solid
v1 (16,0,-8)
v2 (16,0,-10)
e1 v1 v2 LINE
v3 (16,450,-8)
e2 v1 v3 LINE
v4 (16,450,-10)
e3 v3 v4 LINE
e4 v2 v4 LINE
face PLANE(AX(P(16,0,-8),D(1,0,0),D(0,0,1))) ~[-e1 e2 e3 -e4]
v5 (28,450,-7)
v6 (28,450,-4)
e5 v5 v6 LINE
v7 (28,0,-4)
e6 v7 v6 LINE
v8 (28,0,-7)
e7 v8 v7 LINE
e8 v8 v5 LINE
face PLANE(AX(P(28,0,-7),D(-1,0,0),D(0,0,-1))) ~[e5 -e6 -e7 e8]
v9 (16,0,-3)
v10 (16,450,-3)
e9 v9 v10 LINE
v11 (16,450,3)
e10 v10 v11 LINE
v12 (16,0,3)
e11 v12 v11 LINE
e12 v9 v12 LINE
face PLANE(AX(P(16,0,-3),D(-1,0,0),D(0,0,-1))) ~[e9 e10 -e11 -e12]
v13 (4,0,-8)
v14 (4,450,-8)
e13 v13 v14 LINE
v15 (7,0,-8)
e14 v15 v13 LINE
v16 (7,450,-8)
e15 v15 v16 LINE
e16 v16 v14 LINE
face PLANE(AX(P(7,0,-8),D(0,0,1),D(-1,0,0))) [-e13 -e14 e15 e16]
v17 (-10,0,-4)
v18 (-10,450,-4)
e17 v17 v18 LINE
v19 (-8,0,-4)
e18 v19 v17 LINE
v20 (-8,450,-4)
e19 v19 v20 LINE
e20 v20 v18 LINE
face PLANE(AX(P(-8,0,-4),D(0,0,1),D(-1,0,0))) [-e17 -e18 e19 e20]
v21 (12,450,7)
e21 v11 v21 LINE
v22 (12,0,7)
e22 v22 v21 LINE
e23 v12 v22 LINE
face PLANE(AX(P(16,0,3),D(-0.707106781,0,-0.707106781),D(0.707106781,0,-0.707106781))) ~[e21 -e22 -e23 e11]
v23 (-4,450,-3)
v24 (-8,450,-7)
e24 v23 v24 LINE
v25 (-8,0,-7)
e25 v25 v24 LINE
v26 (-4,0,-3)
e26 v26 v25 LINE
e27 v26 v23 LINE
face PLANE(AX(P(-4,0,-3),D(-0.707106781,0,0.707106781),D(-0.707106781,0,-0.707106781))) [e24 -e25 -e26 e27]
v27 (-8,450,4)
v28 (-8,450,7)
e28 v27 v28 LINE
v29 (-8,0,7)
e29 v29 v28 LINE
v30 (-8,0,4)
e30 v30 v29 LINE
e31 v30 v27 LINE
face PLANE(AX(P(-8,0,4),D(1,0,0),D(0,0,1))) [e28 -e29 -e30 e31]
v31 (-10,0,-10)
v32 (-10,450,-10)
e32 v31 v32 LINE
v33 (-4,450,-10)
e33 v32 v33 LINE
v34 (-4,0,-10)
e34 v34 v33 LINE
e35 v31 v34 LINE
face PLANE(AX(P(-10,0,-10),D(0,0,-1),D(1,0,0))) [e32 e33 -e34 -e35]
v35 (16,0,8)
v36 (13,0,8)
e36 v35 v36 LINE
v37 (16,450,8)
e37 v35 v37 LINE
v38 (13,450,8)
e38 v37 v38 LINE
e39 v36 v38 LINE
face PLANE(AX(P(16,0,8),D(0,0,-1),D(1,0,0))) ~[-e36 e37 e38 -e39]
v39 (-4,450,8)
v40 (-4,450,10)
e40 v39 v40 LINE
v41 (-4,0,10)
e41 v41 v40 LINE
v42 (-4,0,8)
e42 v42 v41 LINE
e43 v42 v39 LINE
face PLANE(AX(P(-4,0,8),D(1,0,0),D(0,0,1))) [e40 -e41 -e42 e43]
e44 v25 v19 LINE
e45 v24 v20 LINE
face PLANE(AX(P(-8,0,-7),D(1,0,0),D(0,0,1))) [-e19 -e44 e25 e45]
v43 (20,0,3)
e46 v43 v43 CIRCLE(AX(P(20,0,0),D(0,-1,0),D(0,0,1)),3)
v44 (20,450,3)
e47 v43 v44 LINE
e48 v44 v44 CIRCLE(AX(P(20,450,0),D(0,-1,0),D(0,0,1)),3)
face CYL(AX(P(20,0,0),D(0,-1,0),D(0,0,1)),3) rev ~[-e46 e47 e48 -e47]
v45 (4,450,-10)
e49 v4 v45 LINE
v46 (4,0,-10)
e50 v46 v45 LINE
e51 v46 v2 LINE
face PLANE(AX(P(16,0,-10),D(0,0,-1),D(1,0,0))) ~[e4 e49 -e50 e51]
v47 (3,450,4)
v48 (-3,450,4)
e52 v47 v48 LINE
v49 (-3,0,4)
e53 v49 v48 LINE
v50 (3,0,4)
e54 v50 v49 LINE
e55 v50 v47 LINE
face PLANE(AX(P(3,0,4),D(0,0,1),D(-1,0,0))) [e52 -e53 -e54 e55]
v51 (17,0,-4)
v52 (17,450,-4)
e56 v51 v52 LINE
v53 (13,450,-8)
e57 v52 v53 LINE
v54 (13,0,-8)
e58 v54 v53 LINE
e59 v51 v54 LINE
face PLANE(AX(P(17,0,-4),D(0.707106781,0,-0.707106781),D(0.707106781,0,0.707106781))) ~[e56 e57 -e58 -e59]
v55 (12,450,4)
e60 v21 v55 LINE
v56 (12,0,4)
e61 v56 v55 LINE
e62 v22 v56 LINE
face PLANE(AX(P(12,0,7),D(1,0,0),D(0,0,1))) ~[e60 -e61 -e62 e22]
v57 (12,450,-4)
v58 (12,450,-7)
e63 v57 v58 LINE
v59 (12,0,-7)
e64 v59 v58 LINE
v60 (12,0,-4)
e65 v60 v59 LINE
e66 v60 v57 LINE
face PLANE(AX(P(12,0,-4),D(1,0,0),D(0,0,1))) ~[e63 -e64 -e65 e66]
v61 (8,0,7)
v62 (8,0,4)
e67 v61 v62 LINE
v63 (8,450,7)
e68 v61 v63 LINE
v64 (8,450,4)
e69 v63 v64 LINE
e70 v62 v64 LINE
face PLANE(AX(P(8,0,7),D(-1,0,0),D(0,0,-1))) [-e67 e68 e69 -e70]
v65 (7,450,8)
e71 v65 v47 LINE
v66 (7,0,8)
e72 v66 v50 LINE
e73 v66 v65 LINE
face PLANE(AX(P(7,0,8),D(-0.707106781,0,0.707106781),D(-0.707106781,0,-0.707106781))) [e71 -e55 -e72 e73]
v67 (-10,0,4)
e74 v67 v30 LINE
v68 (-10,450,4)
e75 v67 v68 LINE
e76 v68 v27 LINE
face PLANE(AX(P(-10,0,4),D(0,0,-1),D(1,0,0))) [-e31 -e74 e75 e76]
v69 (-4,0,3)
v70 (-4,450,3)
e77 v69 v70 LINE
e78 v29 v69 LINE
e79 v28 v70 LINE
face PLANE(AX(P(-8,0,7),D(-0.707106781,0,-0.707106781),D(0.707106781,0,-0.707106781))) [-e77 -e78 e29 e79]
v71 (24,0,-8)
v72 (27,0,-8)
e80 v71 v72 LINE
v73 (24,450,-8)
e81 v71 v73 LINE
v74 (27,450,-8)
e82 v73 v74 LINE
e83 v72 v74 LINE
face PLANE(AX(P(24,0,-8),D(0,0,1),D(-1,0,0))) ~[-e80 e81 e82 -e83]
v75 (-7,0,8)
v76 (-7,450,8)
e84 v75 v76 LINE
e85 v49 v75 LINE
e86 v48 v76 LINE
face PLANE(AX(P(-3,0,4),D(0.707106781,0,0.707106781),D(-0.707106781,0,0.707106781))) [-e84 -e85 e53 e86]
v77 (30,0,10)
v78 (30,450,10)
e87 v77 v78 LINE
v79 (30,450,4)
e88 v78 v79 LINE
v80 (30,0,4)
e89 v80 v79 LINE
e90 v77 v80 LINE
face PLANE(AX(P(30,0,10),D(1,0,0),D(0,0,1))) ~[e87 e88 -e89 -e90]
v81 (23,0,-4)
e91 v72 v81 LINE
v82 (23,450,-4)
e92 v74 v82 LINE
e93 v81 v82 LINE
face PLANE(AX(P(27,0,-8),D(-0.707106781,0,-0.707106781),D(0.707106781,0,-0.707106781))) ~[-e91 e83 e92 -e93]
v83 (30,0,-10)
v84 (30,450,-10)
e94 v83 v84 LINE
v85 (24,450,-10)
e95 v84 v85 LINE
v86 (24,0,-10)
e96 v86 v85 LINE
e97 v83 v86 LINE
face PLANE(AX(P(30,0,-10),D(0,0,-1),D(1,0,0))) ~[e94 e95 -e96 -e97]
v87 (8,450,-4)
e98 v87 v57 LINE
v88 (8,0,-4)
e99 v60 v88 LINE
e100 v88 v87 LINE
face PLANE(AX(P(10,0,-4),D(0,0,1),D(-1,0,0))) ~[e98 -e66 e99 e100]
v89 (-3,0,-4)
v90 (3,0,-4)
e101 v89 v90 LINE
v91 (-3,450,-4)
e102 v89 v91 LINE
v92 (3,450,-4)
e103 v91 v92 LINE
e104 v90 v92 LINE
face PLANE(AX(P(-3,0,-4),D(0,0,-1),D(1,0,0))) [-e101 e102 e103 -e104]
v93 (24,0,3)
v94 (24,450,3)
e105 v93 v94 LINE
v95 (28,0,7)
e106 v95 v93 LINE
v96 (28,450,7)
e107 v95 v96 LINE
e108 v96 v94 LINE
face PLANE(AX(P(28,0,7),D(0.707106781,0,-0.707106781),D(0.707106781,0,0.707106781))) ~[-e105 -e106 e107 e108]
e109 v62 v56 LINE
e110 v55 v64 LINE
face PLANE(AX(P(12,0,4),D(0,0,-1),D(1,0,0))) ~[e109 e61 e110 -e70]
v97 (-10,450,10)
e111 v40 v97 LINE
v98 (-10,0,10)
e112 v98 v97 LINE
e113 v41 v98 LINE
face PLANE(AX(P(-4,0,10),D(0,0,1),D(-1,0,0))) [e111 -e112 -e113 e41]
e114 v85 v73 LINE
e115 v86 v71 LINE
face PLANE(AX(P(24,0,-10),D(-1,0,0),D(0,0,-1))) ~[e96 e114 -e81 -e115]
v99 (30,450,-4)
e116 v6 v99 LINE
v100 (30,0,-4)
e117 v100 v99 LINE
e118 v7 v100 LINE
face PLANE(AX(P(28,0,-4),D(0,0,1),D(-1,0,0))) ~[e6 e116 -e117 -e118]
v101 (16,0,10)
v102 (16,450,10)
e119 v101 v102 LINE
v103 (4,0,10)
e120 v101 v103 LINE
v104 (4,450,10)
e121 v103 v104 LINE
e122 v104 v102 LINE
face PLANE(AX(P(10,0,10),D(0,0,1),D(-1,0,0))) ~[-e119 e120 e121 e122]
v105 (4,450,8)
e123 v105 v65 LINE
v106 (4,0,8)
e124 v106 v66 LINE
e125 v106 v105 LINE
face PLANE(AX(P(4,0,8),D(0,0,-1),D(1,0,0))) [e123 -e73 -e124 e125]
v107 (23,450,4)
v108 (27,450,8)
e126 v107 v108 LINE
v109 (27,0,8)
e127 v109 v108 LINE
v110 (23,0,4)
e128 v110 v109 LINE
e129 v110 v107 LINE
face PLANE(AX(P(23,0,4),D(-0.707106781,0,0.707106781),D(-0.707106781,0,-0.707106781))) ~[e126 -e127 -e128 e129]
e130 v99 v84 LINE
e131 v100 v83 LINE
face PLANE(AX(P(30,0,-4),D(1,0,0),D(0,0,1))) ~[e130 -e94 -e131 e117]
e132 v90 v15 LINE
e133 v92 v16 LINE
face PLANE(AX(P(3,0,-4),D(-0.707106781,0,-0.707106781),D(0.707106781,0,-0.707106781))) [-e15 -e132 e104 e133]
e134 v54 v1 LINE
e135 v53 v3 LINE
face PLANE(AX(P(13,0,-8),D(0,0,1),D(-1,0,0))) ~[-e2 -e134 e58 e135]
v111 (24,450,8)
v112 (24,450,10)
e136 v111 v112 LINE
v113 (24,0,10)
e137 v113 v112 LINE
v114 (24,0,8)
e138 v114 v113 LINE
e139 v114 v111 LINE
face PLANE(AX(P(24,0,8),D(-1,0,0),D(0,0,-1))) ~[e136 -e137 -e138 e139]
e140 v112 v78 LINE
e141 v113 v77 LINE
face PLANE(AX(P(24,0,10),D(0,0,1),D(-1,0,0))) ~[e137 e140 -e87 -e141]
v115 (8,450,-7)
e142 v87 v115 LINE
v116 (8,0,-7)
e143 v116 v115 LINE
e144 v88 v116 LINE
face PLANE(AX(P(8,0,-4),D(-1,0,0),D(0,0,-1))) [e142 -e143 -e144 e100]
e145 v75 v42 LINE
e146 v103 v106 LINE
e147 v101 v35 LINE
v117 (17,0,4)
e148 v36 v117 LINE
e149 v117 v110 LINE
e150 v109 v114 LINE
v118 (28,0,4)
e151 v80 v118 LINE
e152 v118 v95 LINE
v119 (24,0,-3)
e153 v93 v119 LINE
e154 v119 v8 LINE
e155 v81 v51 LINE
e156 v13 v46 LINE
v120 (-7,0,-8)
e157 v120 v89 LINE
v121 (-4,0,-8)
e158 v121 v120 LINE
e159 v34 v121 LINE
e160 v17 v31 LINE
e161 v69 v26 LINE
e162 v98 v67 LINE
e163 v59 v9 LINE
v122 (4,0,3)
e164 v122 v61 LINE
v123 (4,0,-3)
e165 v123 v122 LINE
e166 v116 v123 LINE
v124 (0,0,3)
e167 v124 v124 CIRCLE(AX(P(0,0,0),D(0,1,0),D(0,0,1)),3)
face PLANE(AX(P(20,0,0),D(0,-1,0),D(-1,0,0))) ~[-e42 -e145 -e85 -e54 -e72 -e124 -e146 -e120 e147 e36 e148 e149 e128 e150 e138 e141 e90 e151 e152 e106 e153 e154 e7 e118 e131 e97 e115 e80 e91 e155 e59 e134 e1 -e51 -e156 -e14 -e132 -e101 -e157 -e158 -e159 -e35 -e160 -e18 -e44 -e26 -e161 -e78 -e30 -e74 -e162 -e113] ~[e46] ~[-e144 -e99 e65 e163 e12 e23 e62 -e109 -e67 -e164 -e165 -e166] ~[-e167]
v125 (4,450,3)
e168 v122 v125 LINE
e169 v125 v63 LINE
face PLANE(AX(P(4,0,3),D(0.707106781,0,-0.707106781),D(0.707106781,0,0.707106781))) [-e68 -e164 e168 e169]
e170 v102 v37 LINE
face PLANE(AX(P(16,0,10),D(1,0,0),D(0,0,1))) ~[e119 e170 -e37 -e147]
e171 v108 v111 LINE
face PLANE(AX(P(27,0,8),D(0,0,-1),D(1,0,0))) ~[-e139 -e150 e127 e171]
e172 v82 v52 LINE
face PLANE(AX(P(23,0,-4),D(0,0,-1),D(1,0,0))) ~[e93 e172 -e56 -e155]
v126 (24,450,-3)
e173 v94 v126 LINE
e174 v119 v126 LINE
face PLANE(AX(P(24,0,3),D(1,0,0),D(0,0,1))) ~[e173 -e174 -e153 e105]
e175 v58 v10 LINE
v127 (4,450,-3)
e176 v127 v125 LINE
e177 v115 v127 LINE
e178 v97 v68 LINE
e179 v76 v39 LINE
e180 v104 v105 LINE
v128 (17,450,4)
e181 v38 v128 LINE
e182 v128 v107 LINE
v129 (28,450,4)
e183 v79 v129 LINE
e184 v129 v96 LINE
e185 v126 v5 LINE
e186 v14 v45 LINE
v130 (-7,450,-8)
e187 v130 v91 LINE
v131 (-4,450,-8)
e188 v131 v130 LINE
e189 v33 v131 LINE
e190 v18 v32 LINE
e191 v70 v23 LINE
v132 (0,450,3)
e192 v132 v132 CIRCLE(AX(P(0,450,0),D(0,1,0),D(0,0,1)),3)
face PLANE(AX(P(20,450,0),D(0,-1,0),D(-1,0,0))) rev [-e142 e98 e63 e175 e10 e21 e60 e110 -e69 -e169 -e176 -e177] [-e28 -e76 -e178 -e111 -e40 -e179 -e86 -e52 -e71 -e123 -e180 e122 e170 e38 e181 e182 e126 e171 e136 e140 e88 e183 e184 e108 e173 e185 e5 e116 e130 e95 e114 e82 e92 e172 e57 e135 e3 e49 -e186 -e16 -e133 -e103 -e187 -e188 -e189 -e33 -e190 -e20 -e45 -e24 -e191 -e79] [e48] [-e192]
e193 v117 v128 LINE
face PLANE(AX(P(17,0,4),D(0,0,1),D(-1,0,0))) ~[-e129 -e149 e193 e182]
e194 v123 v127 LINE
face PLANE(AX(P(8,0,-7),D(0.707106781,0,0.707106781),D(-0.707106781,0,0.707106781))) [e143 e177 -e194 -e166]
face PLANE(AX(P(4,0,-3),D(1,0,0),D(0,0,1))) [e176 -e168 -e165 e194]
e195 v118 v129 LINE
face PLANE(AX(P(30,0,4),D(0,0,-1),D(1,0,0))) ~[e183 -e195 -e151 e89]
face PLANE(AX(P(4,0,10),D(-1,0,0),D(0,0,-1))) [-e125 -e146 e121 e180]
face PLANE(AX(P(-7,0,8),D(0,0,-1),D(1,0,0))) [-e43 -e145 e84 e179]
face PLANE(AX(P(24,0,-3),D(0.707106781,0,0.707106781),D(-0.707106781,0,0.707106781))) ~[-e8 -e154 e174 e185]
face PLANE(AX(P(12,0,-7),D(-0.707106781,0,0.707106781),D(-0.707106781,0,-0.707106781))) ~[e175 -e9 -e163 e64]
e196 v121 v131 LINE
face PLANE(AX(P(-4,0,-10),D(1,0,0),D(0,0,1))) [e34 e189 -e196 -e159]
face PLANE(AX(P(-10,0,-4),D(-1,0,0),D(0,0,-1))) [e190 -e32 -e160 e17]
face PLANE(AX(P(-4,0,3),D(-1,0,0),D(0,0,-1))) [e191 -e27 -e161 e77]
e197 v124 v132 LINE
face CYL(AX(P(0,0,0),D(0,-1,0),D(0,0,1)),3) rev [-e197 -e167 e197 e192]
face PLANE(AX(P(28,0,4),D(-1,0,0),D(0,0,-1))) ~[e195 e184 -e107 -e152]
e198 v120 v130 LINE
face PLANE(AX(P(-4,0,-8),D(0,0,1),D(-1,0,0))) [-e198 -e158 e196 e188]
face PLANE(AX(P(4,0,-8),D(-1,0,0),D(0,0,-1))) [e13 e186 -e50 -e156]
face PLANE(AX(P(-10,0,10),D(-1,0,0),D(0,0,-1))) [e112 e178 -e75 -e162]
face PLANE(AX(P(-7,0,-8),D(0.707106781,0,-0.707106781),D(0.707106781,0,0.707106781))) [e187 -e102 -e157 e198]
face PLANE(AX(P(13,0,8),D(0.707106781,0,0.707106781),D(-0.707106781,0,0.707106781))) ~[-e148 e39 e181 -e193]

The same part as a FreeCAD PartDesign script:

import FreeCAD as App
import Part
import Sketcher
from FreeCAD import Vector


def add_polygon(sketch, points):
    """Adds a closed chain of lines whose ends are joined by coincident constraints."""
    first, n = sketch.GeometryCount, len(points)
    for a, b in zip(points, points[1:] + points[:1]):
        sketch.addGeometry(Part.LineSegment(App.Vector(*a, 0), App.Vector(*b, 0)), False)
    for i in range(n):
        sketch.addConstraint(Sketcher.Constraint("Coincident", first + i, 2, first + (i + 1) % n, 1))

doc = App.newDocument("Part")
body = doc.addObject("PartDesign::Body", "Body")

# Sketch on XZ plane
sketch1 = doc.addObject("Sketcher::SketchObject", "Sketch")
body.addObject(sketch1)
sketch1.AttachmentSupport = (doc.XZ_Plane, [""])
sketch1.MapMode = "FlatFace"
add_polygon(sketch1, [(-4, -8), (-4, -10), (-10, -10), (-10, -4), (-8, -4), (-8, -7), (-4, -3), (-4, 3), (-8, 7), (-8, 4), (-10, 4), (-10, 10), (-4, 10), (-4, 8), (-7, 8), (-3, 4), (3, 4), (7, 8), (4, 8), (4, 10), (10, 10), (10, 4), (8, 4), (8, 7), (4, 3), (4, -3), (8, -7), (8, -4), (10, -4), (10, -10), (4, -10), (4, -8), (7, -8), (3, -4), (-3, -4), (-7, -8)])  # lines 0-35
sketch1.addGeometry(Part.Circle(Vector(0, 0, 0), Vector(0, 0, 1), 3), False)  # 36
sketch1.addConstraint([
    Sketcher.Constraint("Vertical", 0),
    Sketcher.Constraint("Horizontal", 1),
    Sketcher.Constraint("Vertical", 2),
    Sketcher.Constraint("Horizontal", 3),
    Sketcher.Constraint("Vertical", 4),
    Sketcher.Constraint("Vertical", 6),
    Sketcher.Constraint("Vertical", 8),
    Sketcher.Constraint("Horizontal", 9),
    Sketcher.Constraint("Vertical", 10),
    Sketcher.Constraint("Horizontal", 11),
    Sketcher.Constraint("Vertical", 12),
    Sketcher.Constraint("Horizontal", 13),
    Sketcher.Constraint("Horizontal", 15),
    Sketcher.Constraint("Horizontal", 17),
    Sketcher.Constraint("Vertical", 18),
    Sketcher.Constraint("Horizontal", 19),
    Sketcher.Constraint("Vertical", 20),
    Sketcher.Constraint("Horizontal", 21),
    Sketcher.Constraint("Vertical", 22),
    Sketcher.Constraint("Vertical", 24),
    Sketcher.Constraint("Vertical", 26),
    Sketcher.Constraint("Horizontal", 27),
    Sketcher.Constraint("Vertical", 28),
    Sketcher.Constraint("Horizontal", 29),
    Sketcher.Constraint("Vertical", 30),
    Sketcher.Constraint("Horizontal", 31),
    Sketcher.Constraint("Horizontal", 33),
    Sketcher.Constraint("Horizontal", 35),
    Sketcher.Constraint("Coincident", 36, 3, -1, 1),
    Sketcher.Constraint("Symmetric", 0, 2, 18, 2, -1, 1),
    Sketcher.Constraint("Symmetric", 2, 2, 20, 2, -1, 1),
    Sketcher.Constraint("Symmetric", 4, 2, 22, 2, -1, 1),
    Sketcher.Constraint("Symmetric", 5, 2, 23, 2, -1, 1),
    Sketcher.Constraint("Symmetric", 7, 2, 25, 2, -1, 1),
    Sketcher.Constraint("Symmetric", 9, 2, 27, 2, -1, 1),
    Sketcher.Constraint("Symmetric", 11, 2, 29, 2, -1, 1),
    Sketcher.Constraint("Symmetric", 13, 2, 31, 2, -1, 1),
    Sketcher.Constraint("Symmetric", 14, 2, 32, 2, -1, 1),
    Sketcher.Constraint("Symmetric", 16, 2, 34, 2, -1, 1),
    Sketcher.Constraint("Symmetric", 13, 2, 16, 2, -2),
    Sketcher.Constraint("Symmetric", 11, 2, 18, 2, -2),
    Sketcher.Constraint("Symmetric", 9, 2, 20, 2, -2),
    Sketcher.Constraint("Symmetric", 7, 2, 22, 2, -2),
    Sketcher.Constraint("Perpendicular", 5, 7),
    Sketcher.Constraint("Parallel", 7, 14),
    Sketcher.Constraint("Perpendicular", 14, 16),
    Sketcher.Constraint("Perpendicular", 23, 25),
    Sketcher.Constraint("Perpendicular", 32, 34),
    Sketcher.Constraint("Horizontal", 9, 2, 14, 2),
    Sketcher.Constraint("Horizontal", 6, 2, 23, 2),
    Sketcher.Constraint("Vertical", 0, 2, 5, 2),
    Sketcher.Constraint("Equal", 11, 15),
    Sketcher.Constraint("Equal", 27, 0),
    Sketcher.Constraint("Equal", 33, 2),
    Sketcher.Constraint("Equal", 35, 4),
    Sketcher.Constraint("Equal", 2, 6),
    Sketcher.Constraint("Diameter", 36, 6.0),
    Sketcher.Constraint("DistanceX", 1, 2, 1, 1, 6.0),
    Sketcher.Constraint("DistanceX", 3, 1, 3, 2, 2.0),
    Sketcher.Constraint("DistanceX", 13, 2, 13, 1, 3.0),
])
pad1 = doc.addObject("PartDesign::Pad", "Pad")
body.addObject(pad1)
pad1.Profile = sketch1
pad1.Length = 450
pad1.Reversed = True
doc.recompute()

datumplane = doc.addObject("PartDesign::Plane", "DatumPlane")
body.addObject(datumplane)
datumplane.AttachmentSupport = (doc.YZ_Plane, [""])
datumplane.MapMode = "FlatFace"
datumplane.AttachmentOffset = App.Placement(Vector(0, 0, 10), App.Rotation())
mirrored = doc.addObject("PartDesign::Mirrored", "Mirrored")
body.addObject(mirrored)
mirrored.Originals = [pad1]
mirrored.MirrorPlane = (datumplane, [""])
body.Tip = mirrored

doc.recompute()
